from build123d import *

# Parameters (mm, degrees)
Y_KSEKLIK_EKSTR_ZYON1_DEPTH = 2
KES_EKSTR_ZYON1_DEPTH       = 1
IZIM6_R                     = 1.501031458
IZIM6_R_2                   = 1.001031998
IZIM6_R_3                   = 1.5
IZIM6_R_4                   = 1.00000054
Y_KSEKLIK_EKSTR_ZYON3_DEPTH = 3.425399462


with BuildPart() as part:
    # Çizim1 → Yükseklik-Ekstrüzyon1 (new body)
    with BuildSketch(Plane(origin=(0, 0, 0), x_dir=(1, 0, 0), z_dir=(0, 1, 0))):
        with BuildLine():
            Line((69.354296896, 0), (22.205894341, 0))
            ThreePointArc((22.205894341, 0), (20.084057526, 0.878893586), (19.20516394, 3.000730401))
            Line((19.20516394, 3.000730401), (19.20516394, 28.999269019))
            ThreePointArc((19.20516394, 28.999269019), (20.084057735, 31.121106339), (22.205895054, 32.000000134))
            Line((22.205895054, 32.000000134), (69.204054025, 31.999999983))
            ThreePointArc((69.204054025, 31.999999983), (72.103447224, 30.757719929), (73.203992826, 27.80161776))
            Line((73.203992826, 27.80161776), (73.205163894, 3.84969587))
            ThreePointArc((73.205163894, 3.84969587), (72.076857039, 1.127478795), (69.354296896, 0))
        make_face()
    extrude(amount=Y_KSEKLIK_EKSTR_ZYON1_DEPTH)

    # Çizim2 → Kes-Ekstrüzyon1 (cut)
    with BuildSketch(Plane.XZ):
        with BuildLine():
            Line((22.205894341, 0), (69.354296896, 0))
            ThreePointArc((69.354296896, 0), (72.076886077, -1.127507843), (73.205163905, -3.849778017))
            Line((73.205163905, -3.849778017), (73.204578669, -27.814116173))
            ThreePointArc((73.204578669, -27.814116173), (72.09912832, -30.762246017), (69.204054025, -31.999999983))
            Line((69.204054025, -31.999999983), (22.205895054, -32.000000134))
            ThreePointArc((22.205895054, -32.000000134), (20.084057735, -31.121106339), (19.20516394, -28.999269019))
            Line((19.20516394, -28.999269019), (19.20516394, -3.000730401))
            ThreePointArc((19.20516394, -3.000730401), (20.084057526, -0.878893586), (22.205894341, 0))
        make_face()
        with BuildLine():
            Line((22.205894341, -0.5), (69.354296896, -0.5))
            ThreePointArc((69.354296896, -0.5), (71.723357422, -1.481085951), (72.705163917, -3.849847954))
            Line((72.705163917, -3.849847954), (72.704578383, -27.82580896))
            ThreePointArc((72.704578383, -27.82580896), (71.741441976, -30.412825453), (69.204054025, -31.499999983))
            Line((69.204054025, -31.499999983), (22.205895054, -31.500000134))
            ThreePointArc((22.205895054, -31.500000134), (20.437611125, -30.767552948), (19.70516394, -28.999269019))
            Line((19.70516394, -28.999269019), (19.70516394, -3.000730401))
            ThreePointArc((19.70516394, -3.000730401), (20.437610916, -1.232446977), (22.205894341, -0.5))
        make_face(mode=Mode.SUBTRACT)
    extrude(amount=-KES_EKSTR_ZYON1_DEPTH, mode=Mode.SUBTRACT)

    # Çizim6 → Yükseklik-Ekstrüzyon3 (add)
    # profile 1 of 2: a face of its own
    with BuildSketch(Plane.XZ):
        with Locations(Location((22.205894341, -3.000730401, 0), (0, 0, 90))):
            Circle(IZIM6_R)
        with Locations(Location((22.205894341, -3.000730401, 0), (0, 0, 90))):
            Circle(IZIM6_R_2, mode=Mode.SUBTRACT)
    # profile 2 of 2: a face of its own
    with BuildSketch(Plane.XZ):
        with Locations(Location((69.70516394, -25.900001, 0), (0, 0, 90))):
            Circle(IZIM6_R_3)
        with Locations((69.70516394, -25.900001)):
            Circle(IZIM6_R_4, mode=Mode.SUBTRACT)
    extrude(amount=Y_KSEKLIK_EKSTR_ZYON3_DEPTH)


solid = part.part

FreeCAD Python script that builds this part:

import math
import FreeCAD as App
import Part
import Sketcher
from FreeCAD import Vector
Q = App.Units.Quantity

doc = App.newDocument("Part")
body = doc.addObject("PartDesign::Body", "Body")

# Sketch on XZ plane
sketch1 = doc.addObject("Sketcher::SketchObject", "Sketch")
body.addObject(sketch1)
sketch1.AttachmentSupport = (doc.XZ_Plane, [""])
sketch1.MapMode = "FlatFace"
sketch1.addGeometry(Part.LineSegment(Vector(22.2, 0, 0), Vector(69.4, 0, 0)), False)
sketch1.addGeometry(Part.ArcOfCircle(Part.Circle(Vector(69.4, -3.9, 0), Vector(0, 0, 1), 3.9), math.radians(0), math.radians(90)), False)
sketch1.addGeometry(Part.LineSegment(Vector(73.2, -3.8, 0), Vector(73.2, -27.8, 0)), False)
sketch1.addGeometry(Part.ArcOfCircle(Part.Circle(Vector(69.2, -28, 0), Vector(0, 0, 1), 4), math.radians(-90), math.radians(3)), False)
sketch1.addGeometry(Part.LineSegment(Vector(69.2, -32, 0), Vector(22.2, -32, 0)), False)
sketch1.addGeometry(Part.ArcOfCircle(Part.Circle(Vector(22.2, -29, 0), Vector(0, 0, 1), 3), math.radians(180), math.radians(270)), False)
sketch1.addGeometry(Part.LineSegment(Vector(19.2, -29, 0), Vector(19.2, -3, 0)), False)
sketch1.addGeometry(Part.ArcOfCircle(Part.Circle(Vector(22.2, -3, 0), Vector(0, 0, 1), 3), math.radians(90), math.radians(180)), False)
sketch1.addConstraint(Sketcher.Constraint("Tangent", 0, 2, 1, 2))
sketch1.addConstraint(Sketcher.Constraint("Coincident", 1, 1, 2, 1))
sketch1.addConstraint(Sketcher.Constraint("Coincident", 2, 2, 3, 2))
sketch1.addConstraint(Sketcher.Constraint("Tangent", 3, 1, 4, 1))
sketch1.addConstraint(Sketcher.Constraint("Tangent", 4, 2, 5, 2))
sketch1.addConstraint(Sketcher.Constraint("Tangent", 5, 1, 6, 1))
sketch1.addConstraint(Sketcher.Constraint("Tangent", 6, 2, 7, 2))
sketch1.addConstraint(Sketcher.Constraint("Tangent", 7, 1, 0, 1))
sketch1.addConstraint(Sketcher.Constraint("Horizontal", 0))
sketch1.addConstraint(Sketcher.Constraint("Horizontal", 4))
sketch1.addConstraint(Sketcher.Constraint("Vertical", 6))
sketch1.addConstraint(Sketcher.Constraint("Equal", 5, 7))
sketch1.addConstraint(Sketcher.Constraint("PointOnObject", 0, 2, -1))
sketch1.addConstraint(Sketcher.Constraint("DistanceY", 3, 1, -1, 1, Q("32 mm")))
sketch1.addConstraint(Sketcher.Constraint("Radius", 3, Q("4.004629 mm")))
sketch1.addConstraint(Sketcher.Constraint("Radius", 5, Q("3.000731 mm")))
sketch1.addConstraint(Sketcher.Constraint("Radius", 1, Q("3.850867 mm")))
sketch1.addConstraint(Sketcher.Constraint("DistanceX", 4, 2, 4, 1, Q("46.998159 mm")))
sketch1.addConstraint(Sketcher.Constraint("DistanceX", 5, 3, 1, 3, Q("47.148402 mm")))
sketch1.addConstraint(Sketcher.Constraint("Distance", 2, Q("23.951922 mm")))
sketch1.addConstraint(Sketcher.Constraint("DistanceY", 1, 3, 1, 1, Q("0.001171 mm")))
sketch1.addConstraint(Sketcher.Constraint("DistanceX", -1, 1, 1, 3, Q("69.354297 mm")))
pad1 = doc.addObject("PartDesign::Pad", "Pad")
body.addObject(pad1)
pad1.Profile = sketch1
pad1.Length = 2
pad1.Reversed = True

# Sketch on XZ plane
sketch2 = doc.addObject("Sketcher::SketchObject", "Sketch001")
body.addObject(sketch2)
sketch2.AttachmentSupport = (doc.XZ_Plane, [""])
sketch2.MapMode = "FlatFace"
sketch2.addGeometry(Part.LineSegment(Vector(69.4, 0, 0), Vector(22.2, 0, 0)), False)
sketch2.addGeometry(Part.ArcOfCircle(Part.Circle(Vector(22.2, -3, 0), Vector(0, 0, 1), 3), math.radians(90), math.radians(180)), False)
sketch2.addGeometry(Part.LineSegment(Vector(19.2, -3, 0), Vector(19.2, -29, 0)), False)
sketch2.addGeometry(Part.ArcOfCircle(Part.Circle(Vector(22.2, -29, 0), Vector(0, 0, 1), 3), math.radians(180), math.radians(270)), False)
sketch2.addGeometry(Part.LineSegment(Vector(22.2, -32, 0), Vector(69.2, -32, 0)), False)
sketch2.addGeometry(Part.ArcOfCircle(Part.Circle(Vector(69.2, -28, 0), Vector(0, 0, 1), 4), math.radians(-90), math.radians(3)), False)
sketch2.addGeometry(Part.LineSegment(Vector(73.2, -27.8, 0), Vector(73.2, -3.8, 0)), False)
sketch2.addGeometry(Part.ArcOfCircle(Part.Circle(Vector(69.4, -3.9, 0), Vector(0, 0, 1), 3.9), math.radians(0), math.radians(90)), False)
sketch2.addGeometry(Part.LineSegment(Vector(22.2, -0.5, 0), Vector(69.4, -0.5, 0)), False)
sketch2.addGeometry(Part.ArcOfCircle(Part.Circle(Vector(69.4, -3.9, 0), Vector(0, 0, 1), 3.4), math.radians(0), math.radians(90)), False)
sketch2.addGeometry(Part.LineSegment(Vector(72.7, -3.8, 0), Vector(72.7, -27.8, 0)), False)
sketch2.addGeometry(Part.ArcOfCircle(Part.Circle(Vector(69.2, -28, 0), Vector(0, 0, 1), 3.5), math.radians(-90), math.radians(3)), False)
sketch2.addGeometry(Part.LineSegment(Vector(69.2, -31.5, 0), Vector(22.2, -31.5, 0)), False)
sketch2.addGeometry(Part.ArcOfCircle(Part.Circle(Vector(22.2, -29, 0), Vector(0, 0, 1), 2.5), math.radians(180), math.radians(270)), False)
sketch2.addGeometry(Part.LineSegment(Vector(19.7, -29, 0), Vector(19.7, -3, 0)), False)
sketch2.addGeometry(Part.ArcOfCircle(Part.Circle(Vector(22.2, -3, 0), Vector(0, 0, 1), 2.5), math.radians(90), math.radians(180)), False)
sketch2.addConstraint(Sketcher.Constraint("Tangent", 0, 2, 1, 1))
sketch2.addConstraint(Sketcher.Constraint("Tangent", 1, 2, 2, 1))
sketch2.addConstraint(Sketcher.Constraint("Tangent", 2, 2, 3, 1))
sketch2.addConstraint(Sketcher.Constraint("Tangent", 3, 2, 4, 1))
sketch2.addConstraint(Sketcher.Constraint("Tangent", 4, 2, 5, 1))
sketch2.addConstraint(Sketcher.Constraint("Coincident", 5, 2, 6, 1))
sketch2.addConstraint(Sketcher.Constraint("Coincident", 6, 2, 7, 1))
sketch2.addConstraint(Sketcher.Constraint("Tangent", 7, 2, 0, 1))
sketch2.addConstraint(Sketcher.Constraint("Tangent", 8, 2, 9, 2))
sketch2.addConstraint(Sketcher.Constraint("Coincident", 9, 1, 10, 1))
sketch2.addConstraint(Sketcher.Constraint("Coincident", 10, 2, 11, 2))
sketch2.addConstraint(Sketcher.Constraint("Tangent", 11, 1, 12, 1))
sketch2.addConstraint(Sketcher.Constraint("Tangent", 12, 2, 13, 2))
sketch2.addConstraint(Sketcher.Constraint("Tangent", 13, 1, 14, 1))
sketch2.addConstraint(Sketcher.Constraint("Tangent", 14, 2, 15, 2))
sketch2.addConstraint(Sketcher.Constraint("Tangent", 15, 1, 8, 1))
sketch2.addConstraint(Sketcher.Constraint("Horizontal", 0))
sketch2.addConstraint(Sketcher.Constraint("Vertical", 2))
sketch2.addConstraint(Sketcher.Constraint("Horizontal", 4))
sketch2.addConstraint(Sketcher.Constraint("Horizontal", 8))
sketch2.addConstraint(Sketcher.Constraint("Horizontal", 12))
sketch2.addConstraint(Sketcher.Constraint("Vertical", 14))
sketch2.addConstraint(Sketcher.Constraint("Coincident", 9, 3, 7, 3))
sketch2.addConstraint(Sketcher.Constraint("Coincident", 11, 3, 5, 3))
sketch2.addConstraint(Sketcher.Constraint("Coincident", 13, 3, 3, 3))
sketch2.addConstraint(Sketcher.Constraint("Coincident", 15, 3, 1, 3))
sketch2.addConstraint(Sketcher.Constraint("Equal", 1, 3))
sketch2.addConstraint(Sketcher.Constraint("PointOnObject", 0, 2, -1))
sketch2.addConstraint(Sketcher.Constraint("Parallel", 6, 10))
sketch2.addConstraint(Sketcher.Constraint("DistanceY", 3, 2, -1, 1, Q("32 mm")))
sketch2.addConstraint(Sketcher.Constraint("DistanceY", 8, 2, -1, 1, Q("0.5 mm")))
sketch2.addConstraint(Sketcher.Constraint("Radius", 1, Q("3.00073 mm")))
sketch2.addConstraint(Sketcher.Constraint("Radius", 5, Q("4.004629 mm")))
sketch2.addConstraint(Sketcher.Constraint("Radius", 7, Q("3.850867 mm")))
sketch2.addConstraint(Sketcher.Constraint("DistanceX", 4, 1, 4, 2, Q("46.998159 mm")))
sketch2.addConstraint(Sketcher.Constraint("DistanceX", 3, 3, 7, 3, Q("47.148402 mm")))
sketch2.addConstraint(Sketcher.Constraint("Distance", 6, Q("23.964338 mm")))
sketch2.addConstraint(Sketcher.Constraint("Distance", 10, Q("23.975961 mm")))
sketch2.addConstraint(Sketcher.Constraint("DistanceX", -1, 1, 5, 2, Q("73.204579 mm")))
sketch2.addConstraint(Sketcher.Constraint("DistanceY", 6, 2, -1, 1, Q("3.849778 mm")))
pocket1 = doc.addObject("PartDesign::Pocket", "Pocket")
body.addObject(pocket1)
pocket1.Profile = sketch2
pocket1.Length = 1

# Sketch on XZ plane
sketch3 = doc.addObject("Sketcher::SketchObject", "Sketch002")
body.addObject(sketch3)
sketch3.AttachmentSupport = (doc.XZ_Plane, [""])
sketch3.MapMode = "FlatFace"
sketch3.addGeometry(Part.Circle(Vector(22.2, -3, 0), Vector(0, 0, 1), 1.5), False)
sketch3.addGeometry(Part.Circle(Vector(22.2, -3, 0), Vector(0, 0, 1), 1), False)
sketch3.addGeometry(Part.Circle(Vector(69.7, -25.9, 0), Vector(0, 0, 1), 1.5), False)
sketch3.addGeometry(Part.Circle(Vector(69.7, -25.9, 0), Vector(0, 0, 1), 1), False)
sketch3.addConstraint(Sketcher.Constraint("Coincident", 1, 3, 0, 3))
sketch3.addConstraint(Sketcher.Constraint("Coincident", 3, 3, 2, 3))
sketch3.addConstraint(Sketcher.Constraint("Diameter", 2, Q("3 mm")))
sketch3.addConstraint(Sketcher.Constraint("Diameter", 3, Q("2.000001 mm")))
sketch3.addConstraint(Sketcher.Constraint("DistanceY", 2, 3, -1, 1, Q("25.900001 mm")))
sketch3.addConstraint(Sketcher.Constraint("Diameter", 0, Q("3.002063 mm")))
sketch3.addConstraint(Sketcher.Constraint("Diameter", 1, Q("2.002064 mm")))
sketch3.addConstraint(Sketcher.Constraint("DistanceY", 0, 3, -1, 1, Q("3.00073 mm")))
sketch3.addConstraint(Sketcher.Constraint("DistanceX", 0, 3, 2, 3, Q("47.49927 mm")))
sketch3.addConstraint(Sketcher.Constraint("DistanceX", -1, 1, 0, 3, Q("22.205894 mm")))
pad2 = doc.addObject("PartDesign::Pad", "Pad001")
body.addObject(pad2)
pad2.Profile = sketch3
pad2.Length = 3.425399

doc.recompute()
